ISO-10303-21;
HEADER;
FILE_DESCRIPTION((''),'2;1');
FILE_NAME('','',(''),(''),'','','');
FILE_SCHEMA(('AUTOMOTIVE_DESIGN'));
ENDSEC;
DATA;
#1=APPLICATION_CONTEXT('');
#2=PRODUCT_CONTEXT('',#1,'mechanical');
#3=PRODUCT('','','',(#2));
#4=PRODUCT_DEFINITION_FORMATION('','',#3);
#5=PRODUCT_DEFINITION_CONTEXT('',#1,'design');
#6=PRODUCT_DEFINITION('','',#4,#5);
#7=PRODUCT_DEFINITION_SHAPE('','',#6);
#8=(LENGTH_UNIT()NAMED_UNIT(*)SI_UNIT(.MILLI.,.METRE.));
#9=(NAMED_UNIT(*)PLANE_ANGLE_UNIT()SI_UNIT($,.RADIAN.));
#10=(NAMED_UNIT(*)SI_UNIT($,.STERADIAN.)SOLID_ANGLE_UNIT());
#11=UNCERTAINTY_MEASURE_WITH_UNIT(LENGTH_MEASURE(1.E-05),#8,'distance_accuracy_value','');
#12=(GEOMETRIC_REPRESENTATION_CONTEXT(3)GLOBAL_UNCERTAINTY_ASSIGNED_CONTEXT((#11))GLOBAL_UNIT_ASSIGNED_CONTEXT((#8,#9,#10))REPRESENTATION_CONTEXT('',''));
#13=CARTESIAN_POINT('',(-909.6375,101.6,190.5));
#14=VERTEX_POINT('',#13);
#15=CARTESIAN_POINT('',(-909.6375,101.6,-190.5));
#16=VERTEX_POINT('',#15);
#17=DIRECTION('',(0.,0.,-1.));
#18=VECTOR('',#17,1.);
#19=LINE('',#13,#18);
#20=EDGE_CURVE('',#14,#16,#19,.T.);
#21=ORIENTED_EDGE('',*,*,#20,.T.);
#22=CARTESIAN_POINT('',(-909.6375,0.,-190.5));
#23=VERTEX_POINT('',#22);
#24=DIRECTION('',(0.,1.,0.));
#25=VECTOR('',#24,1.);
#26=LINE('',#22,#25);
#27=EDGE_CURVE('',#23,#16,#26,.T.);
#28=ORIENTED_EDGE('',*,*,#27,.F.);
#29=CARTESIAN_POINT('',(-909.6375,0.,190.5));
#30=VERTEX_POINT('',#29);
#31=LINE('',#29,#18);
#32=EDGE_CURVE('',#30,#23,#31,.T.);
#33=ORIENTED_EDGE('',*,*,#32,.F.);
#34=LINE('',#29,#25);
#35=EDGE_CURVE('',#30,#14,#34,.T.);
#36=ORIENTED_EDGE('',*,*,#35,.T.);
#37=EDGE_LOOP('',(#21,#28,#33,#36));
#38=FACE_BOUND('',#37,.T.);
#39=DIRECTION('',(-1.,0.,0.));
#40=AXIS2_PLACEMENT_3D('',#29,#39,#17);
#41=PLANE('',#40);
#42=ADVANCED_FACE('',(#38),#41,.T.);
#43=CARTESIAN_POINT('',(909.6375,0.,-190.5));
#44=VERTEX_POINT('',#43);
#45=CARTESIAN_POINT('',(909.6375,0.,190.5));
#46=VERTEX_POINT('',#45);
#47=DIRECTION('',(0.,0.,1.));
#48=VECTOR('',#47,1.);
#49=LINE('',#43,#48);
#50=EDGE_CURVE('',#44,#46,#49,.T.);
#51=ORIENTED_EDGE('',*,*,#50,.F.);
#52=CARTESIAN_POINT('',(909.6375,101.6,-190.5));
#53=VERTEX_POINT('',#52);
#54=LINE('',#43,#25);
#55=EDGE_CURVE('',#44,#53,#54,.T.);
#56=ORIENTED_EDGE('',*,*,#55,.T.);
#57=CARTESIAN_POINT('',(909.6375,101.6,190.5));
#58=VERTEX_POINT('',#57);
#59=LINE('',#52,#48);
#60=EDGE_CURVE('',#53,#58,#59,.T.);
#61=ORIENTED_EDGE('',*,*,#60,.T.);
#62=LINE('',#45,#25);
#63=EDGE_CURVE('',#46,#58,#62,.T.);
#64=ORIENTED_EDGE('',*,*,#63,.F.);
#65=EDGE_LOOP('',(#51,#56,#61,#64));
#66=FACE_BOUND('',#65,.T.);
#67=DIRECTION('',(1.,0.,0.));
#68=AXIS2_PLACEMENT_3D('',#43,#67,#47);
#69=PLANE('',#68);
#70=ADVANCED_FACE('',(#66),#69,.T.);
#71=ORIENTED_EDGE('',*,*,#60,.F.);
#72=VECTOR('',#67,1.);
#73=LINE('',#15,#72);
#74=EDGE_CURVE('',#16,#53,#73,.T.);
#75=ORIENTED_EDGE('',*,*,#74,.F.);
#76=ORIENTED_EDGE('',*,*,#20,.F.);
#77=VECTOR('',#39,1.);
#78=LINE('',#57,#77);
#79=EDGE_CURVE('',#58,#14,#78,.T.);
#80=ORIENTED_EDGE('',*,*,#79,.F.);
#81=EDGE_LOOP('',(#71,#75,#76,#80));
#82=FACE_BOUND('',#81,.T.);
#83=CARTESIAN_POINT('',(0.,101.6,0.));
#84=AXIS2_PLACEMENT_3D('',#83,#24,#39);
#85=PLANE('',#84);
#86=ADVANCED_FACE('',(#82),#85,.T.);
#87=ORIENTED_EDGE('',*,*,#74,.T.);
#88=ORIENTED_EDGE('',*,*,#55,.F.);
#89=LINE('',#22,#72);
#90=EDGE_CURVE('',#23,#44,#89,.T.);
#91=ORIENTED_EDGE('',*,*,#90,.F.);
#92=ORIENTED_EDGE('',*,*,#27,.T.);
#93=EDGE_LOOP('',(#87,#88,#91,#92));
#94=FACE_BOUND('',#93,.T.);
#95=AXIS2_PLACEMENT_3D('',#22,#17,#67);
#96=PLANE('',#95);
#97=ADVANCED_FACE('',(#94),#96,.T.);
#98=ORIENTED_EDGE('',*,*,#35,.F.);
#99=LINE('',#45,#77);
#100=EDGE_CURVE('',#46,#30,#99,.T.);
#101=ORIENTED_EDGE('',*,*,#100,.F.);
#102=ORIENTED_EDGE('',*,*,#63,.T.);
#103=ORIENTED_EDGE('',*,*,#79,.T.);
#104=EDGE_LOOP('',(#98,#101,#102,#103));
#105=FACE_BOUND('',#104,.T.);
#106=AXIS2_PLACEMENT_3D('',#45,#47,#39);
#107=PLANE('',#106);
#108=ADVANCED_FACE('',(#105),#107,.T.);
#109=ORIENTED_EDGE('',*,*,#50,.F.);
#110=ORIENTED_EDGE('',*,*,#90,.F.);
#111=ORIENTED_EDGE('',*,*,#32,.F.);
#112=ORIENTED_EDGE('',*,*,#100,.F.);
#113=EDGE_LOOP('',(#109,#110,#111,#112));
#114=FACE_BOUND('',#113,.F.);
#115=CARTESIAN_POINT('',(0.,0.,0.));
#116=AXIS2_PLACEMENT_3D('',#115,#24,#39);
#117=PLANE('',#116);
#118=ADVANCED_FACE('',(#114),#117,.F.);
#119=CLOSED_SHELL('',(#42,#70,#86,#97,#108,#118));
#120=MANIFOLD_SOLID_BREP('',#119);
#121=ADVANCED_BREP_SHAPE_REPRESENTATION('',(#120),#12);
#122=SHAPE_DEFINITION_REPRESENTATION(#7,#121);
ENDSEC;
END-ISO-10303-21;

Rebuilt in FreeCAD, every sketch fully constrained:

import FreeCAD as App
import Part
import Sketcher
from FreeCAD import Vector
Q = App.Units.Quantity


def add_polygon(sketch, points):
    """Adds a closed chain of lines whose ends are joined by coincident constraints."""
    first, n = sketch.GeometryCount, len(points)
    for a, b in zip(points, points[1:] + points[:1]):
        sketch.addGeometry(Part.LineSegment(App.Vector(*a, 0), App.Vector(*b, 0)), False)
    for i in range(n):
        sketch.addConstraint(Sketcher.Constraint("Coincident", first + i, 2, first + (i + 1) % n, 1))

doc = App.newDocument("Part")
params = doc.addObject("Spreadsheet::Sheet", "Params")
for row, (alias, value) in enumerate([
    ("sketch1_height", "15 in"),
    ("sketch1_width", "71.625 in"),
    ("pad1_length", "4 in"),
], start=1):
    params.set(f"A{row}", alias)
    params.set(f"B{row}", "=" + value)
    params.setAlias(f"B{row}", alias)

body = doc.addObject("PartDesign::Body", "Body")

sketch1 = body.newObject("Sketcher::SketchObject", "Sketch")
sketch1.AttachmentSupport = (doc.getObject("XZ_Plane"), [""])
sketch1.MapMode = "FlatFace"
add_polygon(sketch1, [(910, -190), (-910, -190), (-910, 190), (910, 190)])
sketch1.addConstraint(Sketcher.Constraint("Horizontal", 0))
sketch1.addConstraint(Sketcher.Constraint("Vertical", 1))
sketch1.addConstraint(Sketcher.Constraint("Horizontal", 2))
sketch1.addConstraint(Sketcher.Constraint("Vertical", 3))
sketch1.addConstraint(Sketcher.Constraint("Symmetric", 0, 2, 2, 2, -1, 1))
sketch1.addConstraint(Sketcher.Constraint("DistanceY", 1, 1, 1, 2, Q("15 in")))
sketch1.addConstraint(Sketcher.Constraint("DistanceX", 0, 2, 0, 1, Q("71.625 in")))
sketch1.setExpression("Constraints[9]", "Params.sketch1_height")
sketch1.setExpression("Constraints[10]", "Params.sketch1_width")
pad1 = body.newObject("PartDesign::Pad", "Pad")
pad1.Profile = sketch1
pad1.setExpression("Length", "Params.pad1_length")
pad1.Reversed = True

doc.recompute()
